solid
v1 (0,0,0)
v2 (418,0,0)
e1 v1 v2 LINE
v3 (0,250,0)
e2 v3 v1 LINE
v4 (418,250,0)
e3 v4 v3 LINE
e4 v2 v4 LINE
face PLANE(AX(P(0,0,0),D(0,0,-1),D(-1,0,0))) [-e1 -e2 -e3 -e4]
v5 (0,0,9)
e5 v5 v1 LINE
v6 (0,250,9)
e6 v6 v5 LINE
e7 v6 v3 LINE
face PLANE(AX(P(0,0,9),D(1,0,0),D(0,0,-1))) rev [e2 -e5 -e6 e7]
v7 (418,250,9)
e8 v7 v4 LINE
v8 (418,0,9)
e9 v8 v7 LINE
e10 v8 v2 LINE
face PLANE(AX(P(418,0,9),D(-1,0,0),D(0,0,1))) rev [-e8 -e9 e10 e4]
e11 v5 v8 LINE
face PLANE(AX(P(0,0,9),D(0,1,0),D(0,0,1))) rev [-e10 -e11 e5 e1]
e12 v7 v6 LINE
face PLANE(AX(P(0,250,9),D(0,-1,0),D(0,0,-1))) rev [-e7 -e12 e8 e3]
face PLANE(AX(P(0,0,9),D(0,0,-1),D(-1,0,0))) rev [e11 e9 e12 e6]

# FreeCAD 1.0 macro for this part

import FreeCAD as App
import Part
import Sketcher
Q = App.Units.Quantity


def add_polygon(sketch, points):
    """Adds a closed chain of lines whose ends are joined by coincident constraints."""
    first, n = sketch.GeometryCount, len(points)
    for a, b in zip(points, points[1:] + points[:1]):
        sketch.addGeometry(Part.LineSegment(App.Vector(*a, 0), App.Vector(*b, 0)), False)
    for i in range(n):
        sketch.addConstraint(Sketcher.Constraint("Coincident", first + i, 2, first + (i + 1) % n, 1))

doc = App.newDocument("Part")
body = doc.addObject("PartDesign::Body", "Body")

sketch1 = body.newObject("Sketcher::SketchObject", "Sketch")
sketch1.AttachmentSupport = (doc.getObject("XY_Plane"), [""])
sketch1.MapMode = "FlatFace"
add_polygon(sketch1, [(0, 250), (0, 0), (418, 0), (418, 250)])
sketch1.addConstraint([
    Sketcher.Constraint("Vertical", 0),
    Sketcher.Constraint("Horizontal", 1),
    Sketcher.Constraint("Vertical", 2),
    Sketcher.Constraint("Horizontal", 3),
    Sketcher.Constraint("Coincident", 0, 2, -1, 1),
    Sketcher.Constraint("DistanceX", 1, 1, 1, 2, Q("418 mm")),
    Sketcher.Constraint("DistanceY", 0, 2, 0, 1, Q("250 mm")),
])
pad1 = body.newObject("PartDesign::Pad", "Pad")
pad1.Profile = sketch1
pad1.Length = 9

doc.recompute()
